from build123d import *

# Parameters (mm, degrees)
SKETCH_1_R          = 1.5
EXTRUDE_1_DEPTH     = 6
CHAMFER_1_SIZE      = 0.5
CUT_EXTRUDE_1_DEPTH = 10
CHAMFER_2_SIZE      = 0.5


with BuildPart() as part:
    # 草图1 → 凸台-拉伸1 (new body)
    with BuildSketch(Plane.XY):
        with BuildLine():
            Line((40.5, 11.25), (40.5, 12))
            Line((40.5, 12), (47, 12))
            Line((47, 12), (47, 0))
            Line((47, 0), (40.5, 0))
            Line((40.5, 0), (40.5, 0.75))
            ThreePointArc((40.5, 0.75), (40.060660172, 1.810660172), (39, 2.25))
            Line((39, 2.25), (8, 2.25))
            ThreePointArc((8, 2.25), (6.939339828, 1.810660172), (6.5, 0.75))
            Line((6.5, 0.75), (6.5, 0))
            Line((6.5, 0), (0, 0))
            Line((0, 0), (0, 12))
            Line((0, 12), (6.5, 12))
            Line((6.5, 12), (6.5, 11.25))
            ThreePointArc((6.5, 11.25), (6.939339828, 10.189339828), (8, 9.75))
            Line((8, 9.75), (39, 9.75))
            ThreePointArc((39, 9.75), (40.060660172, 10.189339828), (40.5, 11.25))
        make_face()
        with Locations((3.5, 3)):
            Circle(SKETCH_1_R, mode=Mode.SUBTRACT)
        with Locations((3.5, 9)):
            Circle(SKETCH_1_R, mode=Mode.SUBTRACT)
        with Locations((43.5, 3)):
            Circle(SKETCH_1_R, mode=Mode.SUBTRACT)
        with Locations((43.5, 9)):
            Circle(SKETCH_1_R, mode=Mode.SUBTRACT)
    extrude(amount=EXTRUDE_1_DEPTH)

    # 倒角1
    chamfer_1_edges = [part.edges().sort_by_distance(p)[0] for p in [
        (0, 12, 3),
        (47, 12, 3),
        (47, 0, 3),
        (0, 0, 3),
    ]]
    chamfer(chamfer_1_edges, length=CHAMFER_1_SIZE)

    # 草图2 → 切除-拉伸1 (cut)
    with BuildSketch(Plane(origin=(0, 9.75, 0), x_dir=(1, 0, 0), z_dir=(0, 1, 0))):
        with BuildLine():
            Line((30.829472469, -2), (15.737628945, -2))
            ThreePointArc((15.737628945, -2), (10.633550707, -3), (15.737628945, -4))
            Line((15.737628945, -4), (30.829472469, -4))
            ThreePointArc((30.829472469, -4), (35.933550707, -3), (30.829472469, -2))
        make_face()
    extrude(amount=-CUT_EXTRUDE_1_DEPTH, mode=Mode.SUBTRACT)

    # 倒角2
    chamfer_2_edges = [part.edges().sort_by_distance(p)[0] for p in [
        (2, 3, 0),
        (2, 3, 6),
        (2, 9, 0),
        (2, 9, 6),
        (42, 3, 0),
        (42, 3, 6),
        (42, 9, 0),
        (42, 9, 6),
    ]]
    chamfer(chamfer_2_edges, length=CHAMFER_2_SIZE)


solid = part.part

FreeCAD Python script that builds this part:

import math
import FreeCAD as App
import Part
import Sketcher

V = App.Vector


def edges_at(feature, points):
    """Names of the edges that pass closest to the given points."""
    edges = feature.Shape.Edges
    near = lambda p: min(range(len(edges)), key=lambda i: edges[i].distToShape(Part.Vertex(*p))[0])
    return sorted({f"Edge{near(p) + 1}" for p in points})

doc = App.newDocument("Part")
params = doc.addObject("Spreadsheet::Sheet", "Params")
for row, (alias, value) in enumerate([
    ("sketch1_diameter", "3 mm"),
    ("sketch1_width", "31 mm"),
    ("sketch1_height", "12 mm"),
    ("sketch1_width2", "6.5 mm"),
    ("pad1_length", "6 mm"),
    ("chamfer_size", "0.5 mm"),
    ("sketch2_radius", "2.65 mm"),
    ("pocket1_length", "10 mm"),
    ("chamfer2_size", "0.5 mm"),
], start=1):
    params.set(f"A{row}", alias)
    params.set(f"B{row}", "=" + value)
    params.setAlias(f"B{row}", alias)

body = doc.addObject("PartDesign::Body", "Body")

# Sketch on XY plane
sketch1 = body.newObject("Sketcher::SketchObject", "Sketch")
sketch1.AttachmentSupport = (doc.getObject("XY_Plane"), [""])
sketch1.MapMode = "FlatFace"
sketch1.addGeometry(Part.LineSegment(V(40.5, 12, 0), V(40.5, 11.2, 0)), False)
sketch1.addGeometry(Part.ArcOfCircle(Part.Circle(V(39, 11.2, 0), V(0, 0, 1), 1.5), math.radians(-90), math.radians(0)), False)
sketch1.addGeometry(Part.LineSegment(V(39, 9.8, 0), V(8, 9.8, 0)), False)
sketch1.addGeometry(Part.ArcOfCircle(Part.Circle(V(8, 11.2, 0), V(0, 0, 1), 1.5), math.radians(180), math.radians(270)), False)
sketch1.addGeometry(Part.LineSegment(V(6.5, 11.2, 0), V(6.5, 12, 0)), False)
sketch1.addGeometry(Part.LineSegment(V(6.5, 12, 0), V(0, 12, 0)), False)
sketch1.addGeometry(Part.LineSegment(V(0, 12, 0), V(0, 0, 0)), False)
sketch1.addGeometry(Part.LineSegment(V(0, 0, 0), V(6.5, 0, 0)), False)
sketch1.addGeometry(Part.LineSegment(V(6.5, 0, 0), V(6.5, 0.8, 0)), False)
sketch1.addGeometry(Part.ArcOfCircle(Part.Circle(V(8, 0.8, 0), V(0, 0, 1), 1.5), math.radians(90), math.radians(180)), False)
sketch1.addGeometry(Part.LineSegment(V(8, 2.2, 0), V(39, 2.2, 0)), False)
sketch1.addGeometry(Part.ArcOfCircle(Part.Circle(V(39, 0.8, 0), V(0, 0, 1), 1.5), math.radians(0), math.radians(90)), False)
sketch1.addGeometry(Part.LineSegment(V(40.5, 0.8, 0), V(40.5, 0, 0)), False)
sketch1.addGeometry(Part.LineSegment(V(40.5, 0, 0), V(47, 0, 0)), False)
sketch1.addGeometry(Part.LineSegment(V(47, 0, 0), V(47, 12, 0)), False)
sketch1.addGeometry(Part.LineSegment(V(47, 12, 0), V(40.5, 12, 0)), False)
sketch1.addGeometry(Part.Circle(V(43.5, 3, 0), V(0, 0, 1), 1.5), False)
sketch1.addGeometry(Part.Circle(V(3.5, 3, 0), V(0, 0, 1), 1.5), False)
sketch1.addGeometry(Part.Circle(V(43.5, 9, 0), V(0, 0, 1), 1.5), False)
sketch1.addGeometry(Part.Circle(V(3.5, 9, 0), V(0, 0, 1), 1.5), False)
sketch1.addConstraint(Sketcher.Constraint("Tangent", 0, 2, 1, 2))
sketch1.addConstraint(Sketcher.Constraint("Tangent", 1, 1, 2, 1))
sketch1.addConstraint(Sketcher.Constraint("Tangent", 2, 2, 3, 2))
sketch1.addConstraint(Sketcher.Constraint("Tangent", 3, 1, 4, 1))
sketch1.addConstraint(Sketcher.Constraint("Coincident", 4, 2, 5, 1))
sketch1.addConstraint(Sketcher.Constraint("Coincident", 5, 2, 6, 1))
sketch1.addConstraint(Sketcher.Constraint("Coincident", 6, 2, 7, 1))
sketch1.addConstraint(Sketcher.Constraint("Coincident", 7, 2, 8, 1))
sketch1.addConstraint(Sketcher.Constraint("Tangent", 8, 2, 9, 2))
sketch1.addConstraint(Sketcher.Constraint("Tangent", 9, 1, 10, 1))
sketch1.addConstraint(Sketcher.Constraint("Tangent", 10, 2, 11, 2))
sketch1.addConstraint(Sketcher.Constraint("Tangent", 11, 1, 12, 1))
sketch1.addConstraint(Sketcher.Constraint("Coincident", 12, 2, 13, 1))
sketch1.addConstraint(Sketcher.Constraint("Coincident", 13, 2, 14, 1))
sketch1.addConstraint(Sketcher.Constraint("Coincident", 14, 2, 15, 1))
sketch1.addConstraint(Sketcher.Constraint("Coincident", 15, 2, 0, 1))
sketch1.addConstraint(Sketcher.Constraint("Vertical", 0))
sketch1.addConstraint(Sketcher.Constraint("Horizontal", 2))
sketch1.addConstraint(Sketcher.Constraint("Vertical", 4))
sketch1.addConstraint(Sketcher.Constraint("Horizontal", 5))
sketch1.addConstraint(Sketcher.Constraint("Vertical", 6))
sketch1.addConstraint(Sketcher.Constraint("Horizontal", 7))
sketch1.addConstraint(Sketcher.Constraint("Vertical", 8))
sketch1.addConstraint(Sketcher.Constraint("Horizontal", 10))
sketch1.addConstraint(Sketcher.Constraint("Vertical", 12))
sketch1.addConstraint(Sketcher.Constraint("Horizontal", 13))
sketch1.addConstraint(Sketcher.Constraint("Vertical", 14))
sketch1.addConstraint(Sketcher.Constraint("Horizontal", 15))
sketch1.addConstraint(Sketcher.Constraint("Coincident", 6, 2, -1, 1))
sketch1.addConstraint(Sketcher.Constraint("Equal", 1, 3))
sketch1.addConstraint(Sketcher.Constraint("Equal", 3, 9))
sketch1.addConstraint(Sketcher.Constraint("Equal", 9, 11))
sketch1.addConstraint(Sketcher.Constraint("Equal", 11, 16))
sketch1.addConstraint(Sketcher.Constraint("Equal", 16, 17))
sketch1.addConstraint(Sketcher.Constraint("Equal", 17, 18))
sketch1.addConstraint(Sketcher.Constraint("Equal", 18, 19))
sketch1.addConstraint(Sketcher.Constraint("PointOnObject", 12, 2, -1))
sketch1.addConstraint(Sketcher.Constraint("Horizontal", 16, 3, 17, 3))
sketch1.addConstraint(Sketcher.Constraint("Horizontal", 18, 3, 19, 3))
sketch1.addConstraint(Sketcher.Constraint("Horizontal", 5, 2, 14, 2))
sketch1.addConstraint(Sketcher.Constraint("Vertical", 3, 3, 9, 3))
sketch1.addConstraint(Sketcher.Constraint("Vertical", 1, 3, 11, 3))
sketch1.addConstraint(Sketcher.Constraint("Vertical", 16, 3, 18, 3))
sketch1.addConstraint(Sketcher.Constraint("Vertical", 17, 3, 19, 3))
sketch1.addConstraint(Sketcher.Constraint("Equal", 7, 13))
sketch1.addConstraint(Sketcher.Constraint("Equal", 4, 8))
sketch1.addConstraint(Sketcher.Constraint("Diameter", 16, 3.0))
sketch1.addConstraint(Sketcher.Constraint("DistanceX", 2, 2, 2, 1, 31.0))
sketch1.addConstraint(Sketcher.Constraint("DistanceY", 6, 2, 6, 1, 12.0))
sketch1.addConstraint(Sketcher.Constraint("DistanceX", 5, 2, 5, 1, 6.5))
sketch1.addConstraint(Sketcher.Constraint("DistanceY", -1, 1, 16, 3, 3.0))
sketch1.addConstraint(Sketcher.Constraint("DistanceY", -1, 1, 18, 3, 9.0))
sketch1.addConstraint(Sketcher.Constraint("DistanceX", 17, 3, 16, 3, 40.0))
sketch1.addConstraint(Sketcher.Constraint("DistanceX", 0, 2, 18, 3, 3.0))
sketch1.addConstraint(Sketcher.Constraint("DistanceY", 11, 3, 1, 1, 9.0))
sketch1.setExpression("Constraints[46]", "Params.sketch1_diameter")
sketch1.setExpression("Constraints[47]", "Params.sketch1_width")
sketch1.setExpression("Constraints[48]", "Params.sketch1_height")
sketch1.setExpression("Constraints[49]", "Params.sketch1_width2")
pad1 = body.newObject("PartDesign::Pad", "Pad")
pad1.Profile = sketch1
pad1.setExpression("Length", "Params.pad1_length")
doc.recompute()

chamfer = body.newObject("PartDesign::Chamfer", "Chamfer")
chamfer.Base = (pad1, edges_at(pad1, [
    (0, 12, 3),
    (47, 12, 3),
    (47, 0, 3),
    (0, 0, 3),
]))
chamfer.setExpression("Size", "Params.chamfer_size")

# Sketch on XZ plane
sketch2 = body.newObject("Sketcher::SketchObject", "Sketch001")
sketch2.AttachmentSupport = (doc.getObject("XZ_Plane"), [""])
sketch2.MapMode = "FlatFace"
sketch2.AttachmentOffset = App.Placement(V(0, 0, -9.75), App.Rotation())
sketch2.addGeometry(Part.LineSegment(V(30.8, 2, 0), V(15.7, 2, 0)), False)
sketch2.addGeometry(Part.ArcOfCircle(Part.Circle(V(13.3, 3, 0), V(0, 0, 1), 2.6), math.radians(22), math.radians(338)), False)
sketch2.addGeometry(Part.LineSegment(V(15.7, 4, 0), V(30.8, 4, 0)), False)
sketch2.addGeometry(Part.ArcOfCircle(Part.Circle(V(33.3, 3, 0), V(0, 0, 1), 2.6), math.radians(-158), math.radians(158)), False)
sketch2.addConstraint(Sketcher.Constraint("Coincident", 0, 2, 1, 2))
sketch2.addConstraint(Sketcher.Constraint("Coincident", 1, 1, 2, 1))
sketch2.addConstraint(Sketcher.Constraint("Coincident", 2, 2, 3, 2))
sketch2.addConstraint(Sketcher.Constraint("Coincident", 3, 1, 0, 1))
sketch2.addConstraint(Sketcher.Constraint("Horizontal", 0))
sketch2.addConstraint(Sketcher.Constraint("Horizontal", 2))
sketch2.addConstraint(Sketcher.Constraint("Equal", 1, 3))
sketch2.addConstraint(Sketcher.Constraint("Horizontal", 1, 3, 3, 3))
sketch2.addConstraint(Sketcher.Constraint("Vertical", 0, 2, 1, 1))
sketch2.addConstraint(Sketcher.Constraint("Radius", 1, 2.65))
sketch2.addConstraint(Sketcher.Constraint("DistanceY", -1, 1, 1, 3, 3.0))
sketch2.addConstraint(Sketcher.Constraint("DistanceY", -1, 1, 0, 2, 2.0))
sketch2.addConstraint(Sketcher.Constraint("DistanceX", 1, 3, 3, 3, 20.0))
sketch2.addConstraint(Sketcher.Constraint("DistanceX", -1, 1, 1, 3, 13.283551))
sketch2.setExpression("Constraints[9]", "Params.sketch2_radius")
pocket1 = body.newObject("PartDesign::Pocket", "Pocket")
pocket1.Profile = sketch2
pocket1.setExpression("Length", "Params.pocket1_length")
pocket1.Reversed = True
doc.recompute()

chamfer2 = body.newObject("PartDesign::Chamfer", "Chamfer001")
chamfer2.Base = (pocket1, edges_at(pocket1, [
    (2, 3, 0),
    (2, 3, 6),
    (2, 9, 0),
    (2, 9, 6),
    (42, 3, 0),
    (42, 3, 6),
    (42, 9, 0),
    (42, 9, 6),
]))
chamfer2.setExpression("Size", "Params.chamfer2_size")

doc.recompute()
